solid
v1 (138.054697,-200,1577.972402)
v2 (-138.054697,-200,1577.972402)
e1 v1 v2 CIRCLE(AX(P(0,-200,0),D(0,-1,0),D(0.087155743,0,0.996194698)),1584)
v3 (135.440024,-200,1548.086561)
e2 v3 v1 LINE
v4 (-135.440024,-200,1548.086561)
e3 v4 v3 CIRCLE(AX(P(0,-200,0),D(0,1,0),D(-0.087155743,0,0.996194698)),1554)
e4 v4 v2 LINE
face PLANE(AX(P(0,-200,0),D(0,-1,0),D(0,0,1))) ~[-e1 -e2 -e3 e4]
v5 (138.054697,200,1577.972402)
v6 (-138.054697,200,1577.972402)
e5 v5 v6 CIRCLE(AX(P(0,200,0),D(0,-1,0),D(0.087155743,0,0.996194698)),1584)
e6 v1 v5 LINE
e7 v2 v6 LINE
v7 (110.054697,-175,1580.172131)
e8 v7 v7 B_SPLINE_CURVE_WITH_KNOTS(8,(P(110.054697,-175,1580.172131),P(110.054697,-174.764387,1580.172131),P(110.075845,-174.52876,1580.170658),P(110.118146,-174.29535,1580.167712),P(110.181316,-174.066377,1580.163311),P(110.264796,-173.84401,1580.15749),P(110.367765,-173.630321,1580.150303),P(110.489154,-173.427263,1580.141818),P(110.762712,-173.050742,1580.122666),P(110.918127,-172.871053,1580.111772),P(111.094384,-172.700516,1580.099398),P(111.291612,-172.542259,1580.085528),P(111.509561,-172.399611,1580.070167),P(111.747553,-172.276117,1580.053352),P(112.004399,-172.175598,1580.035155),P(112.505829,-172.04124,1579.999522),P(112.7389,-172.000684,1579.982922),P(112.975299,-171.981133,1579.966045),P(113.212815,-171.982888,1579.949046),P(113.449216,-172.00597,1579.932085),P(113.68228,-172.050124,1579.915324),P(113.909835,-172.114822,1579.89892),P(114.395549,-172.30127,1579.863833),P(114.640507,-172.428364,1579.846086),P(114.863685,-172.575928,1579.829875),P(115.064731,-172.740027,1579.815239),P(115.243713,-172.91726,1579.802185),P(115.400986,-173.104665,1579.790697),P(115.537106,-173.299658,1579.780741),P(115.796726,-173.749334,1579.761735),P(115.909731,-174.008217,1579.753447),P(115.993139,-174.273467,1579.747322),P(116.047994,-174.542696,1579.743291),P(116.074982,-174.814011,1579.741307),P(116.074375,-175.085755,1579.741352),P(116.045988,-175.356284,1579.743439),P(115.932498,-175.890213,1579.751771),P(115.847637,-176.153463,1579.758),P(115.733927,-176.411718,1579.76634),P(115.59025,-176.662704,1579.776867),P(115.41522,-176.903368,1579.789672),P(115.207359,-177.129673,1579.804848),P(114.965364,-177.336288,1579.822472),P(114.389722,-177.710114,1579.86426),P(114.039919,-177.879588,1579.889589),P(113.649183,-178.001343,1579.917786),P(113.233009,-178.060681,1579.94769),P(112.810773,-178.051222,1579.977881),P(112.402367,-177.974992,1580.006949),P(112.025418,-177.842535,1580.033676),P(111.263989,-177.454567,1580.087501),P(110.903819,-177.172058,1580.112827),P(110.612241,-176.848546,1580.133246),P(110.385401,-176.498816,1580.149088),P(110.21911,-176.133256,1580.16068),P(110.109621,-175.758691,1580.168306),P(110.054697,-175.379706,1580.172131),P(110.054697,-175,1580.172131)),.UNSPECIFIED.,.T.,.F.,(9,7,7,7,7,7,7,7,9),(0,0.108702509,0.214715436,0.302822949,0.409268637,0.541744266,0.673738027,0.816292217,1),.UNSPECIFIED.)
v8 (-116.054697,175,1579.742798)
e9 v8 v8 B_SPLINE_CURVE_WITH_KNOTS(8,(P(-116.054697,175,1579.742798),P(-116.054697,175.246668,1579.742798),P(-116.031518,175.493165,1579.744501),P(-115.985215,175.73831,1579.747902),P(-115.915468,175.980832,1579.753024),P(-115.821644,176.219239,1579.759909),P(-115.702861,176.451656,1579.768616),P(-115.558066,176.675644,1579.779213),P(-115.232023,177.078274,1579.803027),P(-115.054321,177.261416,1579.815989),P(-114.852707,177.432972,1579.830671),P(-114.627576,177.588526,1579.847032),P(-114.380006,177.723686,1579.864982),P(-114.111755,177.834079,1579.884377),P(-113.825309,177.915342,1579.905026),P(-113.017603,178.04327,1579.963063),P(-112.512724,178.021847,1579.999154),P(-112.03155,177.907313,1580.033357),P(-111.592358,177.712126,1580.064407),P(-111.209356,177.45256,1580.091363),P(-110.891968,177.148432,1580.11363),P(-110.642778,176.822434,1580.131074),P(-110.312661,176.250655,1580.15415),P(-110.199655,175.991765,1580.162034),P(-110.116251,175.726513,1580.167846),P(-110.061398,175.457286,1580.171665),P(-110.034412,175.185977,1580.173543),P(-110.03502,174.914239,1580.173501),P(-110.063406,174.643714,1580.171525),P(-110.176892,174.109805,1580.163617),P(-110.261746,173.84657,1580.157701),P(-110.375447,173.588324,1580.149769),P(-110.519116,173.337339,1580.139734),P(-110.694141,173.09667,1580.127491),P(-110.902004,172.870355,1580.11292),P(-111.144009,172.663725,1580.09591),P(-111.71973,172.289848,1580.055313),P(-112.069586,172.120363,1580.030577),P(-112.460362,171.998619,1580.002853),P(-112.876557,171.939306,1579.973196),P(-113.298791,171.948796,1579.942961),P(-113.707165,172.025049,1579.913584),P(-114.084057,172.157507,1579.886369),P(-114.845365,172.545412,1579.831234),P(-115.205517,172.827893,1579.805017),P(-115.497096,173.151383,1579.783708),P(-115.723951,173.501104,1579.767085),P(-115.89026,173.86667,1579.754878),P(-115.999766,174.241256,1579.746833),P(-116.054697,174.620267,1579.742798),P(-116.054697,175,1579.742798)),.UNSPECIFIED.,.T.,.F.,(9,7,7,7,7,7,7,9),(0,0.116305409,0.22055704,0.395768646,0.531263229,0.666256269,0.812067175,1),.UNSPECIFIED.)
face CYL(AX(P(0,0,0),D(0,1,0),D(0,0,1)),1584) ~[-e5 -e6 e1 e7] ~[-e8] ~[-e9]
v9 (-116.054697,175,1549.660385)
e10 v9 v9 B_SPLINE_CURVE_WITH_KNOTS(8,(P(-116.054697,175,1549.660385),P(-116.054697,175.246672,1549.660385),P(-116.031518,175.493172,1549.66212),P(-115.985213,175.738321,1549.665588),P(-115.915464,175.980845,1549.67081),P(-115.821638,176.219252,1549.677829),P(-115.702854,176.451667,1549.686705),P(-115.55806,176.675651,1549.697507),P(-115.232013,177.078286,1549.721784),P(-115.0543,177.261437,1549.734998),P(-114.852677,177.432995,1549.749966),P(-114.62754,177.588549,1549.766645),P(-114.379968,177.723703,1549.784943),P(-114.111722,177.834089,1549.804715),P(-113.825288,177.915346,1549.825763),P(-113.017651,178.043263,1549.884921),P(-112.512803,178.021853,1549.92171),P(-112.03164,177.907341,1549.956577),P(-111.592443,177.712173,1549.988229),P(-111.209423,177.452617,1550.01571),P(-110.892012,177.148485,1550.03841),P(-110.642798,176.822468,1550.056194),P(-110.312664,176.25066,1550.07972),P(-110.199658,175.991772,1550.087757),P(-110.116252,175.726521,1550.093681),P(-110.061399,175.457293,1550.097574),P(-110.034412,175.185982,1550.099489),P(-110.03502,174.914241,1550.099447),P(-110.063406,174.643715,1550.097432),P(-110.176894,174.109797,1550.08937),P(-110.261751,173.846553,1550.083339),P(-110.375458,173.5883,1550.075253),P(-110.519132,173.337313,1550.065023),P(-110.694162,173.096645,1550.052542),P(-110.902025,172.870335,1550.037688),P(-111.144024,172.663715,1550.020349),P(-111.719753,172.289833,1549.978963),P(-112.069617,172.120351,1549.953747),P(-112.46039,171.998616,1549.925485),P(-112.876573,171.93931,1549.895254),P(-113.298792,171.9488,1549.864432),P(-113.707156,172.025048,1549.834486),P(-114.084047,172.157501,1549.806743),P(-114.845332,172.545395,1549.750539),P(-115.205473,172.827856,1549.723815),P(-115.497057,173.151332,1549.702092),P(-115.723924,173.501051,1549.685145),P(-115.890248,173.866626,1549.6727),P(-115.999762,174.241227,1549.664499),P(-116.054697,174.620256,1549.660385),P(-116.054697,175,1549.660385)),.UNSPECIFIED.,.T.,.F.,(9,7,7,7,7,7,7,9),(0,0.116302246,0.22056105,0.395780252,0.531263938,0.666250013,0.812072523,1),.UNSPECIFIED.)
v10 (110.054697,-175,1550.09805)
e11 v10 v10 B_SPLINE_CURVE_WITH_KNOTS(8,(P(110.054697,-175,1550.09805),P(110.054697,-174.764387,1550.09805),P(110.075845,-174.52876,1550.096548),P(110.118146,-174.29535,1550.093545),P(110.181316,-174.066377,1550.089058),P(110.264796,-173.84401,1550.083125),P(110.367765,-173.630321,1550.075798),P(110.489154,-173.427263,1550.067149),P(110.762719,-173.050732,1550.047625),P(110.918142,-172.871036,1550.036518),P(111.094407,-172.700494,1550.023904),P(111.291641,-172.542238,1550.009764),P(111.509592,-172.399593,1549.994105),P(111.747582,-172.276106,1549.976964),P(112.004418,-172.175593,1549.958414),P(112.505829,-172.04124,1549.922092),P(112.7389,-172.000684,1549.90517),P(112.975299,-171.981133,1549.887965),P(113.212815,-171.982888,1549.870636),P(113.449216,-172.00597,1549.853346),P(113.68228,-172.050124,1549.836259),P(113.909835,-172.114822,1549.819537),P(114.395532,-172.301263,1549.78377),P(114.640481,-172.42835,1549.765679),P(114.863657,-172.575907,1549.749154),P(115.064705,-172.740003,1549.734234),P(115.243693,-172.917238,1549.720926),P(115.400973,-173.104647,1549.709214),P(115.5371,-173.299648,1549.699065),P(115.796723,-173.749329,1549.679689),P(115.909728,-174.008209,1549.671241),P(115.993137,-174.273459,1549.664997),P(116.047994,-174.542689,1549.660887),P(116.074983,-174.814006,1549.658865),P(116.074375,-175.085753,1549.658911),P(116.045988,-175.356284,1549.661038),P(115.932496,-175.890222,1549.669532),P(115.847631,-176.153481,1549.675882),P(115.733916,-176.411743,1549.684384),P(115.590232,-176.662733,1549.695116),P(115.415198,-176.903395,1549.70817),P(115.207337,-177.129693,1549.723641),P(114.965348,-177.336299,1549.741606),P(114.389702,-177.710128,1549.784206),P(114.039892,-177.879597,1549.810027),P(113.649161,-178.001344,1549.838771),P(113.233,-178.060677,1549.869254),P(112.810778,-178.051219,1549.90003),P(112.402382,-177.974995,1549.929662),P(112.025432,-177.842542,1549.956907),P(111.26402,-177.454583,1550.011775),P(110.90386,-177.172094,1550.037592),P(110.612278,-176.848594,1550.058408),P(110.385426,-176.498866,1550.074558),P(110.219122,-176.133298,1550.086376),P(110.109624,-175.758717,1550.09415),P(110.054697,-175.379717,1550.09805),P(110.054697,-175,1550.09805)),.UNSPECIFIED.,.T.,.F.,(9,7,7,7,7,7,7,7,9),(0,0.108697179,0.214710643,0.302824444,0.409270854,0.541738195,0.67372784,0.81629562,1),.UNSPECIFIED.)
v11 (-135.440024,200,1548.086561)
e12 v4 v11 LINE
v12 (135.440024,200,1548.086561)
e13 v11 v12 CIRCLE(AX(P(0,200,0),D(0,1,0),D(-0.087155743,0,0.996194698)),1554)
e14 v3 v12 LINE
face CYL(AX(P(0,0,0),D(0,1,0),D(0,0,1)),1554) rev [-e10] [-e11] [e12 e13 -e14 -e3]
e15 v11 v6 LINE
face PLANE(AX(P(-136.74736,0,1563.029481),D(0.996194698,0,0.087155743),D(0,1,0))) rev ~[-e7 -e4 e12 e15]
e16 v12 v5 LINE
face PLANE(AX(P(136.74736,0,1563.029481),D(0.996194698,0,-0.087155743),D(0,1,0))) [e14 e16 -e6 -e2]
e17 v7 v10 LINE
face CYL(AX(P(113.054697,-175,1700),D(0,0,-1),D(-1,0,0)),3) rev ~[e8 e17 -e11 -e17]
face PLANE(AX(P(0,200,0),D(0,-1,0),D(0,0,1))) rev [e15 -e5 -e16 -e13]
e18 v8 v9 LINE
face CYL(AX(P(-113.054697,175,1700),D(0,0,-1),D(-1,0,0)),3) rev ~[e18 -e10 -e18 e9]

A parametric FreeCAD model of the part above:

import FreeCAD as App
import Part
import Sketcher
from FreeCAD import Vector
Q = App.Units.Quantity

doc = App.newDocument("Part")
body = doc.addObject("PartDesign::Body", "Body")

# Sketch on YZ plane
sketch1 = body.newObject("Sketcher::SketchObject", "Sketch")
sketch1.AttachmentSupport = (doc.getObject("YZ_Plane"), [""])
sketch1.MapMode = "FlatFace"
sketch1.addGeometry([
    Part.LineSegment(Vector(-200, 1584, 0), Vector(-200, 1554, 0)),
    Part.LineSegment(Vector(-200, 1554, 0), Vector(200, 1554, 0)),
    Part.LineSegment(Vector(200, 1554, 0), Vector(200, 1584, 0)),
    Part.LineSegment(Vector(200, 1584, 0), Vector(-200, 1584, 0)),
], False)
sketch1.addConstraint([
    Sketcher.Constraint("Coincident", 0, 2, 1, 1),
    Sketcher.Constraint("Coincident", 1, 2, 2, 1),
    Sketcher.Constraint("Coincident", 2, 2, 3, 1),
    Sketcher.Constraint("Coincident", 3, 2, 0, 1),
    Sketcher.Constraint("Vertical", 0),
    Sketcher.Constraint("Horizontal", 1),
    Sketcher.Constraint("Vertical", 2),
    Sketcher.Constraint("Horizontal", 3),
    Sketcher.Constraint("DistanceX", 1, 1, 1, 2, Q("400 mm")),
    Sketcher.Constraint("DistanceY", 0, 2, 0, 1, Q("30 mm")),
    Sketcher.Constraint("DistanceX", 0, 2, -1, 1, Q("200 mm")),
    Sketcher.Constraint("DistanceY", -1, 1, 0, 2, Q("1554 mm")),
])
revolution = body.newObject("PartDesign::Revolution", "Revolution")
revolution.Profile = sketch1
revolution.ReferenceAxis = (sketch1, ["H_Axis"])
revolution.Angle = 5

# Sketch on YZ plane
sketch2 = body.newObject("Sketcher::SketchObject", "Sketch001")
sketch2.AttachmentSupport = (doc.getObject("YZ_Plane"), [""])
sketch2.MapMode = "FlatFace"
sketch2.addGeometry([
    Part.LineSegment(Vector(-200, 1584, 0), Vector(-200, 1554, 0)),
    Part.LineSegment(Vector(-200, 1554, 0), Vector(200, 1554, 0)),
    Part.LineSegment(Vector(200, 1554, 0), Vector(200, 1584, 0)),
    Part.LineSegment(Vector(200, 1584, 0), Vector(-200, 1584, 0)),
], False)
sketch2.addConstraint([
    Sketcher.Constraint("Coincident", 0, 2, 1, 1),
    Sketcher.Constraint("Coincident", 1, 2, 2, 1),
    Sketcher.Constraint("Coincident", 2, 2, 3, 1),
    Sketcher.Constraint("Coincident", 3, 2, 0, 1),
    Sketcher.Constraint("Vertical", 0),
    Sketcher.Constraint("Horizontal", 1),
    Sketcher.Constraint("Vertical", 2),
    Sketcher.Constraint("Horizontal", 3),
    Sketcher.Constraint("DistanceX", 1, 1, 1, 2, Q("400 mm")),
    Sketcher.Constraint("DistanceY", 0, 2, 0, 1, Q("30 mm")),
    Sketcher.Constraint("DistanceX", 0, 2, -1, 1, Q("200 mm")),
    Sketcher.Constraint("DistanceY", -1, 1, 0, 2, Q("1554 mm")),
])
revolution2 = body.newObject("PartDesign::Revolution", "Revolution001")
revolution2.Profile = sketch2
revolution2.ReferenceAxis = (sketch2, ["H_Axis"])
revolution2.Angle = 5
revolution2.Reversed = True

# Sketch on XY plane
sketch3 = body.newObject("Sketcher::SketchObject", "Sketch002")
sketch3.AttachmentSupport = (doc.getObject("XY_Plane"), [""])
sketch3.MapMode = "FlatFace"
sketch3.AttachmentOffset = App.Placement(Vector(0, 0, 1600), App.Rotation())
sketch3.addGeometry([
    Part.Circle(Vector(-113.054697, 175, 0), Vector(0, 0, 1), 3),
    Part.Circle(Vector(113.054697, -175, 0), Vector(0, 0, 1), 3),
], False)
sketch3.addConstraint([
    Sketcher.Constraint("Equal", 0, 1),
    Sketcher.Constraint("Symmetric", 0, 3, 1, 3, -1, 1),
    Sketcher.Constraint("Diameter", 0, Q("6 mm")),
    Sketcher.Constraint("DistanceY", -1, 1, 0, 3, Q("175 mm")),
    Sketcher.Constraint("DistanceX", 0, 3, -1, 1, Q("113.054697 mm")),
])
doc.recompute()
hole = body.newObject("PartDesign::Hole", "Hole")
hole.Profile = sketch3
hole.ThreadType = "None"
hole.Diameter = 6
hole.DepthType = "Dimension"
hole.Depth = 100
hole.DrillPoint = "Flat"

doc.recompute()
